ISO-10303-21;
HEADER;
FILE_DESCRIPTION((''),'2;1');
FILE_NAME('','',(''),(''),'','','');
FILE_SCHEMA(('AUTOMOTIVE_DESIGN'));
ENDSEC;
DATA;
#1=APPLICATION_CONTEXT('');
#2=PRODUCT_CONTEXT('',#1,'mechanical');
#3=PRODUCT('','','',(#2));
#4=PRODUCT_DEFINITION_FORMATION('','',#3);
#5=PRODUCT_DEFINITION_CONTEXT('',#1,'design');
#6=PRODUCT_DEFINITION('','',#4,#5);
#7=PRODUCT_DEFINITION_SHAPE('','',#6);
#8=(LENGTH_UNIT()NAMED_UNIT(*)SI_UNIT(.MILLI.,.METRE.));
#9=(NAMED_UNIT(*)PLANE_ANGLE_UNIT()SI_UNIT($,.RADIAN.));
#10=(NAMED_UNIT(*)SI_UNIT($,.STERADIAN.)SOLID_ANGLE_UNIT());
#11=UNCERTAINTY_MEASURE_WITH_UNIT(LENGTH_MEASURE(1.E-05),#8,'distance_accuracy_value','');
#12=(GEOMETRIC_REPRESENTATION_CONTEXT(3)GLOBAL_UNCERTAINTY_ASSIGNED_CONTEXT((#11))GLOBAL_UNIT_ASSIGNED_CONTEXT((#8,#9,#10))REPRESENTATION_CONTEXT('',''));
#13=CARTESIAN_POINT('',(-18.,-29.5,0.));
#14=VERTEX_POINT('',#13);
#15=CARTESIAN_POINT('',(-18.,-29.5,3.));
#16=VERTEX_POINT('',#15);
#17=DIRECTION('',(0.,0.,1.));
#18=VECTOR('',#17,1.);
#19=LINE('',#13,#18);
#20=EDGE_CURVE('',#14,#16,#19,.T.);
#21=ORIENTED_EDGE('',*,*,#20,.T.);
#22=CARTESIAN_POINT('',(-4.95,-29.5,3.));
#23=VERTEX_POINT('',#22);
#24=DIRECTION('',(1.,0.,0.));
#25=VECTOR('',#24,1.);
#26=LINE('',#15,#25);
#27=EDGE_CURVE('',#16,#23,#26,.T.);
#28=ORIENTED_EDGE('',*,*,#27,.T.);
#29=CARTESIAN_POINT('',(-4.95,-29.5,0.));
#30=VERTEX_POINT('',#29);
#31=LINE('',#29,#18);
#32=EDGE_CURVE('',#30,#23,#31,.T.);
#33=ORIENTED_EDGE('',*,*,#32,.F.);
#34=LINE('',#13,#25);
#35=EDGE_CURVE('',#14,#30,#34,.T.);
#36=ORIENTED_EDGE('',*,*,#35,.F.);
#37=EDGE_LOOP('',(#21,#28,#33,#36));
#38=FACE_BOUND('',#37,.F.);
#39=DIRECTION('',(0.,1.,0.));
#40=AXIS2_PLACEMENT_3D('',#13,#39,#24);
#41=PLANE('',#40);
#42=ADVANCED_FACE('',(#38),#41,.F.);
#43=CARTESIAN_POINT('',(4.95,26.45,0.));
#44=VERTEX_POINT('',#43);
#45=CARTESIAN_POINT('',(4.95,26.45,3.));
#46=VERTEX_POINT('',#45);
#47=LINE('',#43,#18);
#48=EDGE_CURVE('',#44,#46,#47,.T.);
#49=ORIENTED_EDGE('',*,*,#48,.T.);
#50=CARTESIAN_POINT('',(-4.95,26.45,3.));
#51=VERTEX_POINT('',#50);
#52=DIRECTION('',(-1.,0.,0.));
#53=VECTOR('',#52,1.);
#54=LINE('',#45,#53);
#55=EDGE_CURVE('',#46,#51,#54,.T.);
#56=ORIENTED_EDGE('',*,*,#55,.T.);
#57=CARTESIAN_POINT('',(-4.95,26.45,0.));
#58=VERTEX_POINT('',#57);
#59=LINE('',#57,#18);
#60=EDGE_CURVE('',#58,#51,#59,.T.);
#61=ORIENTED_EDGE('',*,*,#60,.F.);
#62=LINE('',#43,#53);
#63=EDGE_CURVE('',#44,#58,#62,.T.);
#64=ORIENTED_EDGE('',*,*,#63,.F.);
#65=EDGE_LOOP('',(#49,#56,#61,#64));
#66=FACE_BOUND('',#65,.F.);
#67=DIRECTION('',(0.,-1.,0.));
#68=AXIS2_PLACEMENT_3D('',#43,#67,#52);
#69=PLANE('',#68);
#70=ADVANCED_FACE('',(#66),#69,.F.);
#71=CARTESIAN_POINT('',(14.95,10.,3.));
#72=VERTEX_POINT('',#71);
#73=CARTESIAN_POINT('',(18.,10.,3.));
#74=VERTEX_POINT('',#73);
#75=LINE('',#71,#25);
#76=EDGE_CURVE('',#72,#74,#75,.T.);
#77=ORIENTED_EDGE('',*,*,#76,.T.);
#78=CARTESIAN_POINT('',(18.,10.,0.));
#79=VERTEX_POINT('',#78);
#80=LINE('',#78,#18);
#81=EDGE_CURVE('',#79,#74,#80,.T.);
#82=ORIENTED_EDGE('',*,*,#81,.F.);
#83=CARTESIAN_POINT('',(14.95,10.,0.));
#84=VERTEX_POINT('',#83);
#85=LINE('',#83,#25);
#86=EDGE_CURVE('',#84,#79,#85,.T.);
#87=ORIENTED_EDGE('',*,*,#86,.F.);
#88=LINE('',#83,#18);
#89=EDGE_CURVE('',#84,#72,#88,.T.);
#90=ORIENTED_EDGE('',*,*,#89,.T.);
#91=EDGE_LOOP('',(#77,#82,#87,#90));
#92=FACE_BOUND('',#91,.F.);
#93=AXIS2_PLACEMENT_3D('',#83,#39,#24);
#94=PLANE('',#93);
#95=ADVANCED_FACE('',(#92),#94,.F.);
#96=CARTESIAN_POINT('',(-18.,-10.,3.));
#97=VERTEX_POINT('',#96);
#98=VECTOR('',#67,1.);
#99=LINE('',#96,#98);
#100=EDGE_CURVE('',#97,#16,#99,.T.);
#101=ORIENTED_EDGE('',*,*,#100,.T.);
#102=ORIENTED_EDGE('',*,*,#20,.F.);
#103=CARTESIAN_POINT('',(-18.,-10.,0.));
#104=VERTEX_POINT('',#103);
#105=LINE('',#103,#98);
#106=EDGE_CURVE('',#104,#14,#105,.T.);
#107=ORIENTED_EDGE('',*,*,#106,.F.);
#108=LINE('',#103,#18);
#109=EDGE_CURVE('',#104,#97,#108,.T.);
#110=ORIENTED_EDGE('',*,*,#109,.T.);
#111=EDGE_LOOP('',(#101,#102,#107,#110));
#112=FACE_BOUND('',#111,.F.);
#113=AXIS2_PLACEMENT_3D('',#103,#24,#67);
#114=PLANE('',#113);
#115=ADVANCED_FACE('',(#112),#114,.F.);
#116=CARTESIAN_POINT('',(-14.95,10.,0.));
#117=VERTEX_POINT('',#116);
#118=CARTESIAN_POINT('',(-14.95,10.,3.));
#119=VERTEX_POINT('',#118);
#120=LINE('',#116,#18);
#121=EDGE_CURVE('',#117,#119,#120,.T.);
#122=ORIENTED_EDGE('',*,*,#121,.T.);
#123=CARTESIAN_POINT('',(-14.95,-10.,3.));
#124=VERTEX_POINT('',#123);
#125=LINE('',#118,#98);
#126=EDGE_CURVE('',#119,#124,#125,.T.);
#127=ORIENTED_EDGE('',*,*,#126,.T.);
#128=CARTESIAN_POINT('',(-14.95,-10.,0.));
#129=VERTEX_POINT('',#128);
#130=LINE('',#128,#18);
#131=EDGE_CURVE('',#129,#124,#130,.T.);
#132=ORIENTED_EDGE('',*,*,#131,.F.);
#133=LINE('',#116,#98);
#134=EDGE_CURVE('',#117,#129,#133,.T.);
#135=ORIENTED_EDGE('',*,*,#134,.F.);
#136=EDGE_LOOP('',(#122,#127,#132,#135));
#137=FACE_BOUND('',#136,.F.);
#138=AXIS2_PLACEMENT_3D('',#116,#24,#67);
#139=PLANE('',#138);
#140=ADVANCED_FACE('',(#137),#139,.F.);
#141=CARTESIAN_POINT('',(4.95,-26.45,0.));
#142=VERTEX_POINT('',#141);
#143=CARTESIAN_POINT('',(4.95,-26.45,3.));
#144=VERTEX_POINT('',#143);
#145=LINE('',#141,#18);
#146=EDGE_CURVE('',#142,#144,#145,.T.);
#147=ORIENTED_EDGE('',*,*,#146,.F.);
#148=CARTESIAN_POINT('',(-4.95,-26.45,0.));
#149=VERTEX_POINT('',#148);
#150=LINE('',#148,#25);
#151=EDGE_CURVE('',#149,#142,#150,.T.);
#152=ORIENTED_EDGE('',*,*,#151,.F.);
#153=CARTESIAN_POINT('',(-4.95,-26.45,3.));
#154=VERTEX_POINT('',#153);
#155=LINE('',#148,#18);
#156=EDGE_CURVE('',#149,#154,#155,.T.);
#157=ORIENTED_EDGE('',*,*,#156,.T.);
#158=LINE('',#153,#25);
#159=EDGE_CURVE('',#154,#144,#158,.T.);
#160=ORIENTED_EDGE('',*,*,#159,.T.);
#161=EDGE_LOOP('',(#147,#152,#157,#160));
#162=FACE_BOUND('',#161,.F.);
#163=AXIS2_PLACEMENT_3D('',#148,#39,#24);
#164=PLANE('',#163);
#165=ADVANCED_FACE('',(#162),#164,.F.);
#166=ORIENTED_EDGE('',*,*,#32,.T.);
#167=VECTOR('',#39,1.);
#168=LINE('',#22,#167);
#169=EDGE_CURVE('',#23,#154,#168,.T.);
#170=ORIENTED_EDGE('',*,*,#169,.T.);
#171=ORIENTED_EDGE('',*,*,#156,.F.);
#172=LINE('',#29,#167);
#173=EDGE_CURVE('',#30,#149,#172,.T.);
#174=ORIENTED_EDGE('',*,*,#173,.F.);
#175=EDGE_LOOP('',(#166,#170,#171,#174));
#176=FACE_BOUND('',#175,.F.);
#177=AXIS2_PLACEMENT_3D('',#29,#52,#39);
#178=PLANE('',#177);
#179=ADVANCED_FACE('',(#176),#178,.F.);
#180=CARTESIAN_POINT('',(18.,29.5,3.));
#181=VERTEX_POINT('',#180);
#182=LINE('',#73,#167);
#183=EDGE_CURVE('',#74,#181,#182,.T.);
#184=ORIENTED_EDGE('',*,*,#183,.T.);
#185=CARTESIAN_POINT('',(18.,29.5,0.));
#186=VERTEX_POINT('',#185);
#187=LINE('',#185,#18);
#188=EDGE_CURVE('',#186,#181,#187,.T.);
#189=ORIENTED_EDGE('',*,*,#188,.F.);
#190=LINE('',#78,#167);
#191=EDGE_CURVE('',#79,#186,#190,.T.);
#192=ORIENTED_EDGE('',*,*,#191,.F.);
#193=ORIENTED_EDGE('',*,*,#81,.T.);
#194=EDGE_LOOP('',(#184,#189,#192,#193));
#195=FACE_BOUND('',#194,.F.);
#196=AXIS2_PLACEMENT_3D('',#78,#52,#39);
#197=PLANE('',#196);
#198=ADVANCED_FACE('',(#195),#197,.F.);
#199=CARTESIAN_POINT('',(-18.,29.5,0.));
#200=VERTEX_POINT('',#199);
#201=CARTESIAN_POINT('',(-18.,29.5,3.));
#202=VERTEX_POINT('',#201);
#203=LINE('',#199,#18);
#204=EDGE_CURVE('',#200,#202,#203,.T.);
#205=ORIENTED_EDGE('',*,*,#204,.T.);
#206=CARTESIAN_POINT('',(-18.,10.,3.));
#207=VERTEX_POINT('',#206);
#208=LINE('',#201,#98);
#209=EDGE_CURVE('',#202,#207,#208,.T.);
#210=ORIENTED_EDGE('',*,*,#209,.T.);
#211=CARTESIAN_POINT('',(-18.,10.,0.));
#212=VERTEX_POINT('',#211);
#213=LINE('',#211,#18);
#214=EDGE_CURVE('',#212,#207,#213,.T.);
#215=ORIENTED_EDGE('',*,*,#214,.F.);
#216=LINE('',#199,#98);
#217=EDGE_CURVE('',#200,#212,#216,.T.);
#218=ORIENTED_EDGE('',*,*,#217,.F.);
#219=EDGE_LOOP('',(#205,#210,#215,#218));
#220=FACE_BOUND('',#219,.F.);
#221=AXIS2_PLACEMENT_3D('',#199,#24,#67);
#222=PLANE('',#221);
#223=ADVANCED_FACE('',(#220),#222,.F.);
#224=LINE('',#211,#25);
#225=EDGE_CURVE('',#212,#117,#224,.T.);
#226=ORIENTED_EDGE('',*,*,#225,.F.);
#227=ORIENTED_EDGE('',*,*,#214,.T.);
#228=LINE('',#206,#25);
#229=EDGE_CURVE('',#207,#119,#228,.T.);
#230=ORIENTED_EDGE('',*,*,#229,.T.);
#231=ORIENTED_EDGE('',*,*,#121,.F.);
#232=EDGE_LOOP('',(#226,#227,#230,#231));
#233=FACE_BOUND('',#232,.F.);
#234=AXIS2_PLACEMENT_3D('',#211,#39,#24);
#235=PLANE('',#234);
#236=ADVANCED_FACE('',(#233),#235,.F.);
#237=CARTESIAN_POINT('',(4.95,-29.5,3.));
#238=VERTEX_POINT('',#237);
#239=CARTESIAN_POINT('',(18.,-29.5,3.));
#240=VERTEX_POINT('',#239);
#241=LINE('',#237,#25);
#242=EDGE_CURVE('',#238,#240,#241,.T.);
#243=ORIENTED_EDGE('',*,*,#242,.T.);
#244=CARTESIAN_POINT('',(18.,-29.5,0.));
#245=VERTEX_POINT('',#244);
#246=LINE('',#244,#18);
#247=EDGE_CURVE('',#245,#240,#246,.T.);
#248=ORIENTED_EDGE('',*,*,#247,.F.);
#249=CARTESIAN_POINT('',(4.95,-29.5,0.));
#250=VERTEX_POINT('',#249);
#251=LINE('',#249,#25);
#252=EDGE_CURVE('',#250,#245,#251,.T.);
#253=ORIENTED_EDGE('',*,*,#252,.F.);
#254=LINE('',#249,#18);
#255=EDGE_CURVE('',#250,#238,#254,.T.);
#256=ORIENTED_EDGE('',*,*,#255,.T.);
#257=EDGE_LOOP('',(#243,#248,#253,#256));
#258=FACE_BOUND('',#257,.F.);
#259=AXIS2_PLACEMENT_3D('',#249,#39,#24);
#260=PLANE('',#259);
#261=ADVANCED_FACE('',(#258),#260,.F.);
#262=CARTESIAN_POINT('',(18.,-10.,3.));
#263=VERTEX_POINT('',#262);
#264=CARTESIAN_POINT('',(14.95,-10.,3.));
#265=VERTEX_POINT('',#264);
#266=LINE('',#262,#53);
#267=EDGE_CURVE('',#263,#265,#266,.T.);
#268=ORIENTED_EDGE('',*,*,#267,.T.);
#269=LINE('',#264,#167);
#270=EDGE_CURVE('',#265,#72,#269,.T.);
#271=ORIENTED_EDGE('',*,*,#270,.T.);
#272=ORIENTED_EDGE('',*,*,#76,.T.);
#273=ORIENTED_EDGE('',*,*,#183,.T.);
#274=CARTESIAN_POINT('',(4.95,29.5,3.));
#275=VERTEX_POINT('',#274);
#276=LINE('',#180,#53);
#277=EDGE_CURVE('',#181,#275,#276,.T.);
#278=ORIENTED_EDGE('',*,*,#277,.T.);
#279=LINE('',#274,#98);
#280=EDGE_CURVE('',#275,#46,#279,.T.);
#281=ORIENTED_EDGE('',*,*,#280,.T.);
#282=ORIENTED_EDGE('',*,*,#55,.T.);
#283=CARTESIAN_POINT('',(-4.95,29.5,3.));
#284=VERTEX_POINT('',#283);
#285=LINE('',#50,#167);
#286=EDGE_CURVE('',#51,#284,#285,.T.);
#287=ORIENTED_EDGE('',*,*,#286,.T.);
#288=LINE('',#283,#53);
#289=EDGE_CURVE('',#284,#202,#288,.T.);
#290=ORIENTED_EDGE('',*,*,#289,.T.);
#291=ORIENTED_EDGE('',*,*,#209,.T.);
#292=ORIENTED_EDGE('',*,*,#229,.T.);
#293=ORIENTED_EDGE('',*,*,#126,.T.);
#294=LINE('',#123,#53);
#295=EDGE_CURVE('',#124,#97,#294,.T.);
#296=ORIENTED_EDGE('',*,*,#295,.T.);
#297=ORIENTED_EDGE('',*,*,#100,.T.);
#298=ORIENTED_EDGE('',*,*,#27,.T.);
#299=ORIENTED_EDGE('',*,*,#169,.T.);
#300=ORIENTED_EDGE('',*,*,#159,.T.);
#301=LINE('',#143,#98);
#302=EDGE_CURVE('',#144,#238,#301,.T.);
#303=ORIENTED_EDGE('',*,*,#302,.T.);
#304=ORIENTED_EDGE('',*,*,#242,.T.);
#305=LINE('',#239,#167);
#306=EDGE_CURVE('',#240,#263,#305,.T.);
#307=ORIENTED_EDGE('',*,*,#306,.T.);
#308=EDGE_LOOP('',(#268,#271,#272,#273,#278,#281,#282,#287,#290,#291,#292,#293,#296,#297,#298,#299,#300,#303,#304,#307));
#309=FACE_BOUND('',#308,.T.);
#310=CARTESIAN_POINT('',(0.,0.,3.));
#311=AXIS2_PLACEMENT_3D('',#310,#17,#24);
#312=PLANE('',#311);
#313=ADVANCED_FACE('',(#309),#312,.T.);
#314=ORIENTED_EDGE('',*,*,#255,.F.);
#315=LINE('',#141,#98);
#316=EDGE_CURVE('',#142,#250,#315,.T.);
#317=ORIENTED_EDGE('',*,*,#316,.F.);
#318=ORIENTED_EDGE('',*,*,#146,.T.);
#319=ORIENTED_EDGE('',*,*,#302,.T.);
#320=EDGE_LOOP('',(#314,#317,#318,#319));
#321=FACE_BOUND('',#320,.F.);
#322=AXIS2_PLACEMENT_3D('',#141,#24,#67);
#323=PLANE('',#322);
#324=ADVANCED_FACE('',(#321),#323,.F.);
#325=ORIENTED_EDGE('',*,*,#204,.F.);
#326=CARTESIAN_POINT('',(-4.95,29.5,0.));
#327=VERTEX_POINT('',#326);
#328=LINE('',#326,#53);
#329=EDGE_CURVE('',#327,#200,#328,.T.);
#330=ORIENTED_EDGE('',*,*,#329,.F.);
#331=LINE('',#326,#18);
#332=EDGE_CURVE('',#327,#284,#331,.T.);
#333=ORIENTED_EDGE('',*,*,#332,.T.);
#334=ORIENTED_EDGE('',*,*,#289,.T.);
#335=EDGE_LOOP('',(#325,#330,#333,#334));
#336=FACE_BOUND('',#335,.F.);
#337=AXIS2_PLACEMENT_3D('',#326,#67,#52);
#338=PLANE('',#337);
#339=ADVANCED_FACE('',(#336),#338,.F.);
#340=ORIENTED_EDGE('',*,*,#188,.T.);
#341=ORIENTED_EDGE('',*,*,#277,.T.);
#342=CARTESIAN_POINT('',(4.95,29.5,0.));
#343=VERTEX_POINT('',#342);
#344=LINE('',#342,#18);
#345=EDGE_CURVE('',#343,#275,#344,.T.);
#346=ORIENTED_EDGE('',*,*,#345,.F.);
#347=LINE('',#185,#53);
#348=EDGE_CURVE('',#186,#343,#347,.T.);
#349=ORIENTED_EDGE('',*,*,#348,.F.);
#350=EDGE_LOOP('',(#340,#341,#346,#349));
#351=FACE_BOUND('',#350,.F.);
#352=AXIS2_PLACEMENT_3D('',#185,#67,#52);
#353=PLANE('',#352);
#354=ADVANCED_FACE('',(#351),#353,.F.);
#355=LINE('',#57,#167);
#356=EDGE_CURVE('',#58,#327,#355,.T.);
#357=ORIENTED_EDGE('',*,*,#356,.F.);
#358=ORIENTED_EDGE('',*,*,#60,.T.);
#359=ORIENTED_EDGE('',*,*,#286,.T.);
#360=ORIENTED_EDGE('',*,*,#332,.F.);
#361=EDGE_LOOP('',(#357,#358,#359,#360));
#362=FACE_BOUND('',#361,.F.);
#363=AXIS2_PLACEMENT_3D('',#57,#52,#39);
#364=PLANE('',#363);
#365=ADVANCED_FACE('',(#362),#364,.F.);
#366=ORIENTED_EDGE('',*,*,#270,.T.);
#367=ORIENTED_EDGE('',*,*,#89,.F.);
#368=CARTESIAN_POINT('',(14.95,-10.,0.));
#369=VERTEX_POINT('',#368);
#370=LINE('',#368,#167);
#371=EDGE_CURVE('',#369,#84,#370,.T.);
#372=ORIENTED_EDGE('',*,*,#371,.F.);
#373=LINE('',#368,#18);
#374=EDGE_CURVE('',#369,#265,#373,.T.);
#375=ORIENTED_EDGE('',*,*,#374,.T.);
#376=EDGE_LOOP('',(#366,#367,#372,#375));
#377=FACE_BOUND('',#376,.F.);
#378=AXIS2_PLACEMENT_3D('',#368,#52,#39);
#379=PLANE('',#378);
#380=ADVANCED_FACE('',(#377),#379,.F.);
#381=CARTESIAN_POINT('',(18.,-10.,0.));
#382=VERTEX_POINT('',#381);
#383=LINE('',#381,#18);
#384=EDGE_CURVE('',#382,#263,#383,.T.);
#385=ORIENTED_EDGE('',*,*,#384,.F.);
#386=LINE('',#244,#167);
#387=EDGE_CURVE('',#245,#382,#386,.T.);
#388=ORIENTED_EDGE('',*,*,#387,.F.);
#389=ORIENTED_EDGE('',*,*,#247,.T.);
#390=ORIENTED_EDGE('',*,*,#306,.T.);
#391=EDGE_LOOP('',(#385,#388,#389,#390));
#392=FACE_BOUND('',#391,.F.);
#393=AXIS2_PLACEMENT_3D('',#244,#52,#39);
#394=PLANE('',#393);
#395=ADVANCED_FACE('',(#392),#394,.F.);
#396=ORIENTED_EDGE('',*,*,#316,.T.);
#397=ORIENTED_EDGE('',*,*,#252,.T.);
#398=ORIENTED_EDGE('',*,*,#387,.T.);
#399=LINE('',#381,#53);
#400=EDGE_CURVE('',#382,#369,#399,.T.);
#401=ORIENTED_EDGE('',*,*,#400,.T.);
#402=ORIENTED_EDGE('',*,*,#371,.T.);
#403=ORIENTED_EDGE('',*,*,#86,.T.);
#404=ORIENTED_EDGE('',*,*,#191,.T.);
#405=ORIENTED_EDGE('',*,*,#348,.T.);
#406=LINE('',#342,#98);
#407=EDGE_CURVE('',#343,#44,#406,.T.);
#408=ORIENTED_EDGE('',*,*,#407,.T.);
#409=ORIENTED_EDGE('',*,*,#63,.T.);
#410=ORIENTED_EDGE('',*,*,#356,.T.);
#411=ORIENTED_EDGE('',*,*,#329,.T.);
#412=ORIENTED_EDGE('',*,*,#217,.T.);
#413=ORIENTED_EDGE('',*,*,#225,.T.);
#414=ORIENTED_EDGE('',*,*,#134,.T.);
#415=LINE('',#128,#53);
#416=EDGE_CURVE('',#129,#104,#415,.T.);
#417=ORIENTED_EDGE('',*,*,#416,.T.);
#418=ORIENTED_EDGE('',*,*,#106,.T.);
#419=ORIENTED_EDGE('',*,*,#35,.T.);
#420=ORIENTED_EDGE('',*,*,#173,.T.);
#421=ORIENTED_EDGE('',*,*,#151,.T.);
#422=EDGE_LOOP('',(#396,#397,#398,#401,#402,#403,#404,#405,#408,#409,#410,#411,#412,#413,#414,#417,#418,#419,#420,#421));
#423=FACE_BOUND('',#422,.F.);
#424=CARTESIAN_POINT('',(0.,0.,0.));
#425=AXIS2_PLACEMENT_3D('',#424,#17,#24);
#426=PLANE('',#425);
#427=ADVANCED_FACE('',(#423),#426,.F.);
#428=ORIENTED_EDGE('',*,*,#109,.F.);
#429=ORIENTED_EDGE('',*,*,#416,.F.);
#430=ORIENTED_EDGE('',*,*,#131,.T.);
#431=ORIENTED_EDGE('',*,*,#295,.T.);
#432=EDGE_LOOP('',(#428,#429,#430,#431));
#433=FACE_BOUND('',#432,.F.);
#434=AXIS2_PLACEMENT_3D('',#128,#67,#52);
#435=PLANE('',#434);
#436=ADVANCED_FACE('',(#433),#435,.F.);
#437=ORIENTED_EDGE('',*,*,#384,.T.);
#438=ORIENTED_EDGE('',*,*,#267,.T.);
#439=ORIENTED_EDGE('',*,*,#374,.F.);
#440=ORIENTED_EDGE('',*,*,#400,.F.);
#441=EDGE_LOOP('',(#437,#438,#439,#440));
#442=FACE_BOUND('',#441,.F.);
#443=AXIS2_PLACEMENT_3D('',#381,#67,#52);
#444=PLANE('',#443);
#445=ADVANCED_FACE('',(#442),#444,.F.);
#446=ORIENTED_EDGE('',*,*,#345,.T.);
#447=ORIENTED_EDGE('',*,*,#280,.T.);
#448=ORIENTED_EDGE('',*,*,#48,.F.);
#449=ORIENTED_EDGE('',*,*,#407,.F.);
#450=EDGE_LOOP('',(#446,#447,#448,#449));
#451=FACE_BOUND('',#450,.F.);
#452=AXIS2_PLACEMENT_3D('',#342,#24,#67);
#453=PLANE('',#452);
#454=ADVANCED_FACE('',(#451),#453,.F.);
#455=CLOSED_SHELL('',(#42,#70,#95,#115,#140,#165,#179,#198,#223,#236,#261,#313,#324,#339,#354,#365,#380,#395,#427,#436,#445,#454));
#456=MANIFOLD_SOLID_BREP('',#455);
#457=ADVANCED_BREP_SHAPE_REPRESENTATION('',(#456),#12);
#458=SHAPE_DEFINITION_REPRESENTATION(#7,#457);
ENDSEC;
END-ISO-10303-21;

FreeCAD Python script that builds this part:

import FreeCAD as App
import Part
import Sketcher


def add_polygon(sketch, points):
    """Adds a closed chain of lines whose ends are joined by coincident constraints."""
    first, n = sketch.GeometryCount, len(points)
    for a, b in zip(points, points[1:] + points[:1]):
        sketch.addGeometry(Part.LineSegment(App.Vector(*a, 0), App.Vector(*b, 0)), False)
    for i in range(n):
        sketch.addConstraint(Sketcher.Constraint("Coincident", first + i, 2, first + (i + 1) % n, 1))

doc = App.newDocument("Part")
body = doc.addObject("PartDesign::Body", "Body")

# Sketch on XY plane
sketch1 = doc.addObject("Sketcher::SketchObject", "Sketch")
body.addObject(sketch1)
sketch1.AttachmentSupport = (doc.XY_Plane, [""])
sketch1.MapMode = "FlatFace"
add_polygon(sketch1, [(5, -29.5), (18, -29.5), (18, -10), (14.9, -10), (14.9, 10), (18, 10), (18, 29.5), (5, 29.5), (5, 26.4), (-5, 26.4), (-5, 29.5), (-18, 29.5), (-18, 10), (-14.9, 10), (-14.9, -10), (-18, -10), (-18, -29.5), (-5, -29.5), (-5, -26.4), (5, -26.4)])  # lines 0-19
sketch1.addConstraint([
    Sketcher.Constraint("Horizontal", 0),
    Sketcher.Constraint("Vertical", 1),
    Sketcher.Constraint("Horizontal", 2),
    Sketcher.Constraint("Vertical", 3),
    Sketcher.Constraint("Horizontal", 4),
    Sketcher.Constraint("Vertical", 5),
    Sketcher.Constraint("Horizontal", 6),
    Sketcher.Constraint("Vertical", 7),
    Sketcher.Constraint("Horizontal", 8),
    Sketcher.Constraint("Vertical", 9),
    Sketcher.Constraint("Horizontal", 10),
    Sketcher.Constraint("Vertical", 11),
    Sketcher.Constraint("Horizontal", 12),
    Sketcher.Constraint("Vertical", 13),
    Sketcher.Constraint("Horizontal", 14),
    Sketcher.Constraint("Vertical", 15),
    Sketcher.Constraint("Horizontal", 16),
    Sketcher.Constraint("Vertical", 17),
    Sketcher.Constraint("Horizontal", 18),
    Sketcher.Constraint("Vertical", 19),
    Sketcher.Constraint("Symmetric", 0, 2, 10, 2, -1, 1),
    Sketcher.Constraint("Symmetric", 2, 2, 12, 2, -1, 1),
    Sketcher.Constraint("Symmetric", 4, 2, 14, 2, -1, 1),
    Sketcher.Constraint("Symmetric", 6, 2, 16, 2, -1, 1),
    Sketcher.Constraint("Symmetric", 8, 2, 18, 2, -1, 1),
    Sketcher.Constraint("Symmetric", 6, 2, 9, 2, -2),
    Sketcher.Constraint("Symmetric", 4, 2, 11, 2, -2),
    Sketcher.Constraint("Equal", 14, 7),
    Sketcher.Constraint("DistanceY", 3, 1, 3, 2, 20.0),
    Sketcher.Constraint("DistanceX", 8, 2, 8, 1, 9.9),
    Sketcher.Constraint("DistanceY", 1, 1, 1, 2, 19.5),
    Sketcher.Constraint("DistanceX", -1, 1, 0, 2, 18.0),
    Sketcher.Constraint("DistanceX", 6, 2, 3, 2, 10.0),
])
pad1 = doc.addObject("PartDesign::Pad", "Pad")
body.addObject(pad1)
pad1.Profile = sketch1
pad1.Length = 3

doc.recompute()
